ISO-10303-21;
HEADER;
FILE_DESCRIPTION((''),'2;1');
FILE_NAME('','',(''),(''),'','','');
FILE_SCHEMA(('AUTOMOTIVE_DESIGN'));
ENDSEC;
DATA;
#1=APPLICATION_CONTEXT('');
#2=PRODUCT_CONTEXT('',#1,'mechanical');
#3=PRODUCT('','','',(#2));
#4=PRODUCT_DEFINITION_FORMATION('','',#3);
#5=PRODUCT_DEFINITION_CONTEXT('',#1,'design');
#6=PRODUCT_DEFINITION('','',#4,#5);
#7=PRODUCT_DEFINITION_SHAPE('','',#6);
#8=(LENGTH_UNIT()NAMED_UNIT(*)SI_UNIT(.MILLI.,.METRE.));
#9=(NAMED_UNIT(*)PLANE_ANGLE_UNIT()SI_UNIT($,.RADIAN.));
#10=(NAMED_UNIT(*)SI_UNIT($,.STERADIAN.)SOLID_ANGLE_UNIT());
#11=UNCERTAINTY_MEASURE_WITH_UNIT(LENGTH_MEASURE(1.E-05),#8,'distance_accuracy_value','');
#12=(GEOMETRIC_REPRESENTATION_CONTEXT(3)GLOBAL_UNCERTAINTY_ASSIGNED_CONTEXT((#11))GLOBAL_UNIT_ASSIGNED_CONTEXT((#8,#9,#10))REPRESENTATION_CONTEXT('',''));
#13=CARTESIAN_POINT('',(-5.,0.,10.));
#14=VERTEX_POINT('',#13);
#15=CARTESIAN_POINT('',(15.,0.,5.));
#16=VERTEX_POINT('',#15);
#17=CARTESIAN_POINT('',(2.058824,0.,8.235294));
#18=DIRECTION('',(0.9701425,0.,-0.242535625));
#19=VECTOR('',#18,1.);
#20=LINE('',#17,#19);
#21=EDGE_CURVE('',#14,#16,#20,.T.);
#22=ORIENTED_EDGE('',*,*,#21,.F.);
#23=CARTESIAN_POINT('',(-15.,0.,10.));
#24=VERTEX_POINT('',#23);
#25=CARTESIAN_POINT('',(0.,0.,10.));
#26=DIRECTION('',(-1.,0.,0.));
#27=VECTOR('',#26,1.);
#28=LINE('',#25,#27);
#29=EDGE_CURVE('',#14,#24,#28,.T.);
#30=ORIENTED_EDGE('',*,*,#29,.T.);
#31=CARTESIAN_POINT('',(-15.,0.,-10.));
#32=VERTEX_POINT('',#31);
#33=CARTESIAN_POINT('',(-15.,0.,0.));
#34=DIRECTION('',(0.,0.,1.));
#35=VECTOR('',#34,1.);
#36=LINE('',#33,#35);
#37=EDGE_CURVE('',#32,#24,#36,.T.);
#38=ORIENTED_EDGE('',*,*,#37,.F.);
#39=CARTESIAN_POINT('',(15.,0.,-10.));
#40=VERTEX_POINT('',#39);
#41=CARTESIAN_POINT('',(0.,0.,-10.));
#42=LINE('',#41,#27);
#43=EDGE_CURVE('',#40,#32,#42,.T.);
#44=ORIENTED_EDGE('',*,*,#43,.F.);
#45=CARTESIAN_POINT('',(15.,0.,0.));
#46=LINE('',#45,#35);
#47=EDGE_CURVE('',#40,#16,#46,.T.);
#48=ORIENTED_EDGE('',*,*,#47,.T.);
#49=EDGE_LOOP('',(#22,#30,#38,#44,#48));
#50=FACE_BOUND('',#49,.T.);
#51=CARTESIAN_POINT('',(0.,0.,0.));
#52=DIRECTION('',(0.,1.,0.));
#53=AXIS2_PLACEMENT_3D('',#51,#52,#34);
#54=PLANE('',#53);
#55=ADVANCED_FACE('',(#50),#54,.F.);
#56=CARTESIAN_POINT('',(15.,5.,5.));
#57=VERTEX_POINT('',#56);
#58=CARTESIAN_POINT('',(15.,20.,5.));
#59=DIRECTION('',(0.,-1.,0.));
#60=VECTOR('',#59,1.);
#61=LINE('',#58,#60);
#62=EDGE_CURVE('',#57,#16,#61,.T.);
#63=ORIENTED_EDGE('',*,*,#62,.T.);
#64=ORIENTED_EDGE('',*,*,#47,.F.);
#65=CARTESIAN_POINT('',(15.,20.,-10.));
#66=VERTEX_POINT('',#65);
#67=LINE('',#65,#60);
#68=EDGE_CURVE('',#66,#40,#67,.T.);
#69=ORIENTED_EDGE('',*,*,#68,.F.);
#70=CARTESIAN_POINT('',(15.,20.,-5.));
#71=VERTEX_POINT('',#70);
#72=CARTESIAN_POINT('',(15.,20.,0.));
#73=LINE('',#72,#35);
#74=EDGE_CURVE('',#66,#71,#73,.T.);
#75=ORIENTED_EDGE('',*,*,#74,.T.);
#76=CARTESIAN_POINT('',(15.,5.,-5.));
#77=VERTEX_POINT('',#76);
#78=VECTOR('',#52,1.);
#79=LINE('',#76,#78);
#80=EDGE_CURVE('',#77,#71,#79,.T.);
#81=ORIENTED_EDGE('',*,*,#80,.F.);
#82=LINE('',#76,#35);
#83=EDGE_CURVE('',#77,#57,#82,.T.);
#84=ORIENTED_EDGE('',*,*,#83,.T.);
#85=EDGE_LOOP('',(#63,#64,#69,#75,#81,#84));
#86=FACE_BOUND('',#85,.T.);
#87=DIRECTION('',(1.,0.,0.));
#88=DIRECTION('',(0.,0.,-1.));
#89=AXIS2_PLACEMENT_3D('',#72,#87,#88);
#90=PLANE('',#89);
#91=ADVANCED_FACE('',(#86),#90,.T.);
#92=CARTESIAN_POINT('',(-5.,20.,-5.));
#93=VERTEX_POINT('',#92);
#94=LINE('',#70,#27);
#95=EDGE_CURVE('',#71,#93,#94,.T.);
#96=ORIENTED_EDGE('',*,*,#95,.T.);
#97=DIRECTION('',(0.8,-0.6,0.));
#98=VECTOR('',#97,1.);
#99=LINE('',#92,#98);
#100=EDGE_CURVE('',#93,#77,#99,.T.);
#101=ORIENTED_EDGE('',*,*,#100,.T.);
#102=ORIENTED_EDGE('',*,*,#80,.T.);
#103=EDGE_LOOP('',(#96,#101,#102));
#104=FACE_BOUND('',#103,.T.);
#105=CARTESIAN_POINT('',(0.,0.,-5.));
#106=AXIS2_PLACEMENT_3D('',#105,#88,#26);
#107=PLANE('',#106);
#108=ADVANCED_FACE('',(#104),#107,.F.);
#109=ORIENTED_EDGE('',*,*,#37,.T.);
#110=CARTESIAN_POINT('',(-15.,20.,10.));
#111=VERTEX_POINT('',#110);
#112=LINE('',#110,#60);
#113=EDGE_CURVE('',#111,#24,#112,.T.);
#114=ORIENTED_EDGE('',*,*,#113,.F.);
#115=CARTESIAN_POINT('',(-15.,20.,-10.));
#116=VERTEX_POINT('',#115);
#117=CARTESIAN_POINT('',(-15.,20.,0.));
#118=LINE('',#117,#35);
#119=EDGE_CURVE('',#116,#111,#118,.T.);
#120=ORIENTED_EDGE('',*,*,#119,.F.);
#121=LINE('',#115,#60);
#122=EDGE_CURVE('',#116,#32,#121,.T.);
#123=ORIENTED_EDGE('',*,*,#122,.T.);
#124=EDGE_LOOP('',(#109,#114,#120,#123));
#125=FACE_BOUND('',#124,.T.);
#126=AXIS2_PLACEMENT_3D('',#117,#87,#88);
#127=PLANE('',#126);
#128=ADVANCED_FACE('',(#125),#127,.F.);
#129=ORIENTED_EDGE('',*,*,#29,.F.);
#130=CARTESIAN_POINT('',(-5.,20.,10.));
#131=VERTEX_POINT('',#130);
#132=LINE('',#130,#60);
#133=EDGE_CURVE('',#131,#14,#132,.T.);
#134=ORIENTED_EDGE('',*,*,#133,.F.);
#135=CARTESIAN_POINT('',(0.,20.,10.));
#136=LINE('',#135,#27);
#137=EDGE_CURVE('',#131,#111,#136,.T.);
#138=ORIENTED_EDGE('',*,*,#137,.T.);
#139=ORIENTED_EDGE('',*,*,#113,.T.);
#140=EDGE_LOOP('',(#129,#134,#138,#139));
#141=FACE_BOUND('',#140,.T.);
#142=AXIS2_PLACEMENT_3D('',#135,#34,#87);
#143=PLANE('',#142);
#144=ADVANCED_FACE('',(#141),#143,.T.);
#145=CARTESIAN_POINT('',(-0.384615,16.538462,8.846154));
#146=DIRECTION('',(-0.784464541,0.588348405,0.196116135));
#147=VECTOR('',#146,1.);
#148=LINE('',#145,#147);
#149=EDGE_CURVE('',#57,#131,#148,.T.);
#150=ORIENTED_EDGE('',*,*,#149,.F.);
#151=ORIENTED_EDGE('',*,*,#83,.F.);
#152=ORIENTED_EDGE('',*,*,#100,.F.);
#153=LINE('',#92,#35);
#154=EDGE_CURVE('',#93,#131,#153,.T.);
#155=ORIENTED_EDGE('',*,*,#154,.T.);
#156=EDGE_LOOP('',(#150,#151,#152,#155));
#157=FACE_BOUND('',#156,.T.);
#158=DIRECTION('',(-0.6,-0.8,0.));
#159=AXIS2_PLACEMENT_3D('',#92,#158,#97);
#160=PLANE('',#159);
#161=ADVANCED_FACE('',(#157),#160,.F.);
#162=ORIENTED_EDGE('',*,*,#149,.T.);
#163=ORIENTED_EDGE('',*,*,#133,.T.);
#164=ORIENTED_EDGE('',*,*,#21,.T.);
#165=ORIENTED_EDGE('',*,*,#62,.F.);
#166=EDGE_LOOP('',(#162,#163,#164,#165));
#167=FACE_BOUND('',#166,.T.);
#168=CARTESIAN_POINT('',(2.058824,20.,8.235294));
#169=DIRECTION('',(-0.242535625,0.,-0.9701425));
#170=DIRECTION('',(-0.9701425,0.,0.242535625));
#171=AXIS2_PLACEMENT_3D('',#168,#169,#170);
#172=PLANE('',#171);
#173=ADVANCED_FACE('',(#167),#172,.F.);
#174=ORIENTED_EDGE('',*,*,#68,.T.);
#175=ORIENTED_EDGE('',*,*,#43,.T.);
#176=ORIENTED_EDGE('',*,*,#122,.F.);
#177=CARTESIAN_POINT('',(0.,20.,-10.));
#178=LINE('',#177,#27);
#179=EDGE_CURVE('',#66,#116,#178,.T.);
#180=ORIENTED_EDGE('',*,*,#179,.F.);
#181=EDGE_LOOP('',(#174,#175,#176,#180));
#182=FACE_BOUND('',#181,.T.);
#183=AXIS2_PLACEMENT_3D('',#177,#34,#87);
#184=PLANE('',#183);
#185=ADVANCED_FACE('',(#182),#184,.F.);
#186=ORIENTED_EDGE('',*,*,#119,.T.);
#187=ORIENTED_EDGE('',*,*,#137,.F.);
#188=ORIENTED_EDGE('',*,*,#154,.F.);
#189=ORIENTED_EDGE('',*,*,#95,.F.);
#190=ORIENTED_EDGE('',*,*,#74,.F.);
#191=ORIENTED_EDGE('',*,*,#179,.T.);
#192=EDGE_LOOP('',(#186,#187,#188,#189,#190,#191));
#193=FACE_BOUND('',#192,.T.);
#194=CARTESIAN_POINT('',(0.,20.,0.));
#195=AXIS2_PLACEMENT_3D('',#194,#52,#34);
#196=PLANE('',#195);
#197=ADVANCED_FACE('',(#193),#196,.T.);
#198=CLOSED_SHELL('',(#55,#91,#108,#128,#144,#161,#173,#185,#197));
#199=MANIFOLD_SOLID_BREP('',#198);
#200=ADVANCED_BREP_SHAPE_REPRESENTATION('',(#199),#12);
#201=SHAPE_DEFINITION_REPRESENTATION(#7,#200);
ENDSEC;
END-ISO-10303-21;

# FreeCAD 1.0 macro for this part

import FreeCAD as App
import Part
import Sketcher

V = App.Vector

doc = App.newDocument("Part")
body = doc.addObject("PartDesign::Body", "Body")

sketch1 = doc.addObject("Sketcher::SketchObject", "Sketch")
body.addObject(sketch1)
sketch1.AttachmentSupport = (doc.XZ_Plane, [""])
sketch1.MapMode = "FlatFace"
sketch1.addGeometry(Part.LineSegment(V(-5, -5, 0), V(-5, 10, 0)), False)
sketch1.addGeometry(Part.LineSegment(V(-5, 10, 0), V(15, 5, 0)), False)
sketch1.addGeometry(Part.LineSegment(V(15, 5, 0), V(15, -5, 0)), False)
sketch1.addGeometry(Part.LineSegment(V(15, -5, 0), V(-5, -5, 0)), False)
sketch1.addConstraint(Sketcher.Constraint("Coincident", 0, 2, 1, 1))
sketch1.addConstraint(Sketcher.Constraint("Coincident", 1, 2, 2, 1))
sketch1.addConstraint(Sketcher.Constraint("Coincident", 2, 2, 3, 1))
sketch1.addConstraint(Sketcher.Constraint("Coincident", 3, 2, 0, 1))
sketch1.addConstraint(Sketcher.Constraint("Vertical", 0))
sketch1.addConstraint(Sketcher.Constraint("Vertical", 2))
sketch1.addConstraint(Sketcher.Constraint("Horizontal", 3))
sketch1.addConstraint(Sketcher.Constraint("DistanceX", 3, 2, 3, 1, 20.0))
sketch1.addConstraint(Sketcher.Constraint("DistanceY", 0, 1, 0, 2, 15.0))
sketch1.addConstraint(Sketcher.Constraint("DistanceY", 2, 2, 2, 1, 10.0))
sketch1.addConstraint(Sketcher.Constraint("DistanceX", 0, 2, -1, 1, 5.0))
sketch1.addConstraint(Sketcher.Constraint("DistanceY", -1, 1, 0, 2, 10.0))
pad1 = doc.addObject("PartDesign::Pad", "Pad")
body.addObject(pad1)
pad1.Profile = sketch1
pad1.Length = 20
pad1.Reversed = True

sketch2 = doc.addObject("Sketcher::SketchObject", "Sketch001")
body.addObject(sketch2)
sketch2.AttachmentSupport = (doc.XZ_Plane, [""])
sketch2.MapMode = "FlatFace"
sketch2.addGeometry(Part.LineSegment(V(-15, 10, 0), V(-5, 10, 0)), False)
sketch2.addGeometry(Part.LineSegment(V(-5, 10, 0), V(-5, -5, 0)), False)
sketch2.addGeometry(Part.LineSegment(V(-5, -5, 0), V(15, -5, 0)), False)
sketch2.addGeometry(Part.LineSegment(V(15, -5, 0), V(15, -10, 0)), False)
sketch2.addGeometry(Part.LineSegment(V(15, -10, 0), V(-15, -10, 0)), False)
sketch2.addGeometry(Part.LineSegment(V(-15, -10, 0), V(-15, 10, 0)), False)
sketch2.addConstraint(Sketcher.Constraint("Coincident", 0, 2, 1, 1))
sketch2.addConstraint(Sketcher.Constraint("Coincident", 1, 2, 2, 1))
sketch2.addConstraint(Sketcher.Constraint("Coincident", 2, 2, 3, 1))
sketch2.addConstraint(Sketcher.Constraint("Coincident", 3, 2, 4, 1))
sketch2.addConstraint(Sketcher.Constraint("Coincident", 4, 2, 5, 1))
sketch2.addConstraint(Sketcher.Constraint("Coincident", 5, 2, 0, 1))
sketch2.addConstraint(Sketcher.Constraint("Horizontal", 0))
sketch2.addConstraint(Sketcher.Constraint("Vertical", 1))
sketch2.addConstraint(Sketcher.Constraint("Horizontal", 2))
sketch2.addConstraint(Sketcher.Constraint("Vertical", 3))
sketch2.addConstraint(Sketcher.Constraint("Horizontal", 4))
sketch2.addConstraint(Sketcher.Constraint("Vertical", 5))
sketch2.addConstraint(Sketcher.Constraint("Symmetric", 3, 2, 5, 2, -1, 1))
sketch2.addConstraint(Sketcher.Constraint("Equal", 2, 5))
sketch2.addConstraint(Sketcher.Constraint("DistanceX", 0, 1, 0, 2, 10.0))
sketch2.addConstraint(Sketcher.Constraint("DistanceX", 2, 1, 2, 2, 20.0))
sketch2.addConstraint(Sketcher.Constraint("DistanceY", 1, 2, 1, 1, 15.0))
pad2 = doc.addObject("PartDesign::Pad", "Pad001")
body.addObject(pad2)
pad2.Profile = sketch2
pad2.Length = 20
pad2.Reversed = True

sketch3 = doc.addObject("Sketcher::SketchObject", "Sketch002")
body.addObject(sketch3)
sketch3.AttachmentSupport = (doc.XY_Plane, [""])
sketch3.MapMode = "FlatFace"
sketch3.AttachmentOffset = App.Placement(V(0, 0, 10), App.Rotation())
sketch3.addGeometry(Part.LineSegment(V(-5, 20, 0), V(15, 5, 0)), False)
sketch3.addGeometry(Part.LineSegment(V(15, 5, 0), V(15, 20, 0)), False)
sketch3.addGeometry(Part.LineSegment(V(15, 20, 0), V(-5, 20, 0)), False)
sketch3.addConstraint(Sketcher.Constraint("Coincident", 0, 2, 1, 1))
sketch3.addConstraint(Sketcher.Constraint("Coincident", 1, 2, 2, 1))
sketch3.addConstraint(Sketcher.Constraint("Coincident", 2, 2, 0, 1))
sketch3.addConstraint(Sketcher.Constraint("Vertical", 1))
sketch3.addConstraint(Sketcher.Constraint("Horizontal", 2))
sketch3.addConstraint(Sketcher.Constraint("DistanceX", 2, 2, 2, 1, 20.0))
sketch3.addConstraint(Sketcher.Constraint("DistanceY", 1, 1, 1, 2, 15.0))
sketch3.addConstraint(Sketcher.Constraint("DistanceX", -1, 1, 0, 2, 15.0))
sketch3.addConstraint(Sketcher.Constraint("DistanceY", -1, 1, 0, 2, 5.0))
pocket1 = doc.addObject("PartDesign::Pocket", "Pocket")
body.addObject(pocket1)
pocket1.Profile = sketch3
pocket1.Length = 15

doc.recompute()
